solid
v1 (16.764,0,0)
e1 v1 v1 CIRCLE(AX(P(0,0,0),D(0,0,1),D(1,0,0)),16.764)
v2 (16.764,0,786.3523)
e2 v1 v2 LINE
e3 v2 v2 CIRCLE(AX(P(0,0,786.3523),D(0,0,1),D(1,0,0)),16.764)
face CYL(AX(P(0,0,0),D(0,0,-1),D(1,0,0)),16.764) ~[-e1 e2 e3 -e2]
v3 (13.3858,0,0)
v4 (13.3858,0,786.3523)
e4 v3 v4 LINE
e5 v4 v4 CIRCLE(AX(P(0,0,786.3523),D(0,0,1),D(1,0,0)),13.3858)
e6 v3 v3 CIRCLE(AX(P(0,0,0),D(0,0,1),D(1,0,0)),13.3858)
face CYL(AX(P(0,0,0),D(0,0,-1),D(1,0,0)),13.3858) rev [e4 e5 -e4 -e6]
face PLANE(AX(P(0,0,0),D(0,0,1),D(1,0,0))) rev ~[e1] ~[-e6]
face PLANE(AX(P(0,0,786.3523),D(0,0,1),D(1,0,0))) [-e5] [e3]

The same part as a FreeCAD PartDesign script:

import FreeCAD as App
import Part
import Sketcher
Q = App.Units.Quantity

doc = App.newDocument("Part")
body = doc.addObject("PartDesign::Body", "Body")

# Sketch on XY plane
sketch1 = body.newObject("Sketcher::SketchObject", "Sketch")
sketch1.AttachmentSupport = (doc.getObject("XY_Plane"), [""])
sketch1.MapMode = "FlatFace"
sketch1.addGeometry(Part.Circle(App.Vector(0, 0, 0), App.Vector(0, 0, 1), 17), False)
sketch1.addGeometry(Part.Circle(App.Vector(0, 0, 0), App.Vector(0, 0, 1), 13), False)
sketch1.addConstraint(Sketcher.Constraint("Coincident", 0, 3, -1, 1))
sketch1.addConstraint(Sketcher.Constraint("Coincident", 1, 3, -1, 1))
sketch1.addConstraint(Sketcher.Constraint("Diameter", 0, Q("1.32 in")))
sketch1.addConstraint(Sketcher.Constraint("Diameter", 1, Q("1.054 in")))
pad1 = body.newObject("PartDesign::Pad", "Pad")
pad1.Profile = sketch1
pad1.Length = 786.3523

doc.recompute()
